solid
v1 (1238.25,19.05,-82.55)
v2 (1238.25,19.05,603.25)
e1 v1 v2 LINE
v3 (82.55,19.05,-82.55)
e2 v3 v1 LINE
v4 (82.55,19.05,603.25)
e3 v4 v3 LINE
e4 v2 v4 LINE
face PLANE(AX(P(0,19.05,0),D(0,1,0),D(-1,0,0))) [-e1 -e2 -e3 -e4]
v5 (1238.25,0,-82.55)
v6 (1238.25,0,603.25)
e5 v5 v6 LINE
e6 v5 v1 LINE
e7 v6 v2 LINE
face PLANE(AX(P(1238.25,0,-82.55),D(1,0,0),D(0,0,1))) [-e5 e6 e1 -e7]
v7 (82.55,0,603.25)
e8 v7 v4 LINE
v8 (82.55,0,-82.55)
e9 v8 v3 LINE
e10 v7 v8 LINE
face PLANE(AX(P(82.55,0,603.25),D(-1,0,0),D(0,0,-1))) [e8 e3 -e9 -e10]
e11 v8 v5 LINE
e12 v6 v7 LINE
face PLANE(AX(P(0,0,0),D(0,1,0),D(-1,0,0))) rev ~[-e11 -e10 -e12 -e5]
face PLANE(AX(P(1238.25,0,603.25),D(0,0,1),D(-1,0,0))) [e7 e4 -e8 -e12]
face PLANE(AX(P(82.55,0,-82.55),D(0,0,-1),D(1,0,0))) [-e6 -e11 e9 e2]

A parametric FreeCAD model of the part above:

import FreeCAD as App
import Part
import Sketcher
Q = App.Units.Quantity


def add_polygon(sketch, points):
    """Adds a closed chain of lines whose ends are joined by coincident constraints."""
    first, n = sketch.GeometryCount, len(points)
    for a, b in zip(points, points[1:] + points[:1]):
        sketch.addGeometry(Part.LineSegment(App.Vector(*a, 0), App.Vector(*b, 0)), False)
    for i in range(n):
        sketch.addConstraint(Sketcher.Constraint("Coincident", first + i, 2, first + (i + 1) % n, 1))

doc = App.newDocument("Part")
body = doc.addObject("PartDesign::Body", "Body")

sketch1 = body.newObject("Sketcher::SketchObject", "Sketch")
sketch1.AttachmentSupport = (doc.getObject("XZ_Plane"), [""])
sketch1.MapMode = "FlatFace"
add_polygon(sketch1, [(1238, -83), (83, -83), (83, 603), (1238, 603)])
sketch1.addConstraint([
    Sketcher.Constraint("Horizontal", 0),
    Sketcher.Constraint("Vertical", 1),
    Sketcher.Constraint("Horizontal", 2),
    Sketcher.Constraint("Vertical", 3),
    Sketcher.Constraint("DistanceY", 1, 1, 1, 2, Q("27 in")),
    Sketcher.Constraint("DistanceX", 0, 2, 0, 1, Q("45.5 in")),
    Sketcher.Constraint("DistanceX", -1, 1, 0, 2, Q("3.25 in")),
    Sketcher.Constraint("DistanceY", 0, 2, -1, 1, Q("3.25 in")),
])
pad1 = body.newObject("PartDesign::Pad", "Pad")
pad1.Profile = sketch1
pad1.Length = Q("0.75 in")
pad1.Reversed = True

doc.recompute()
